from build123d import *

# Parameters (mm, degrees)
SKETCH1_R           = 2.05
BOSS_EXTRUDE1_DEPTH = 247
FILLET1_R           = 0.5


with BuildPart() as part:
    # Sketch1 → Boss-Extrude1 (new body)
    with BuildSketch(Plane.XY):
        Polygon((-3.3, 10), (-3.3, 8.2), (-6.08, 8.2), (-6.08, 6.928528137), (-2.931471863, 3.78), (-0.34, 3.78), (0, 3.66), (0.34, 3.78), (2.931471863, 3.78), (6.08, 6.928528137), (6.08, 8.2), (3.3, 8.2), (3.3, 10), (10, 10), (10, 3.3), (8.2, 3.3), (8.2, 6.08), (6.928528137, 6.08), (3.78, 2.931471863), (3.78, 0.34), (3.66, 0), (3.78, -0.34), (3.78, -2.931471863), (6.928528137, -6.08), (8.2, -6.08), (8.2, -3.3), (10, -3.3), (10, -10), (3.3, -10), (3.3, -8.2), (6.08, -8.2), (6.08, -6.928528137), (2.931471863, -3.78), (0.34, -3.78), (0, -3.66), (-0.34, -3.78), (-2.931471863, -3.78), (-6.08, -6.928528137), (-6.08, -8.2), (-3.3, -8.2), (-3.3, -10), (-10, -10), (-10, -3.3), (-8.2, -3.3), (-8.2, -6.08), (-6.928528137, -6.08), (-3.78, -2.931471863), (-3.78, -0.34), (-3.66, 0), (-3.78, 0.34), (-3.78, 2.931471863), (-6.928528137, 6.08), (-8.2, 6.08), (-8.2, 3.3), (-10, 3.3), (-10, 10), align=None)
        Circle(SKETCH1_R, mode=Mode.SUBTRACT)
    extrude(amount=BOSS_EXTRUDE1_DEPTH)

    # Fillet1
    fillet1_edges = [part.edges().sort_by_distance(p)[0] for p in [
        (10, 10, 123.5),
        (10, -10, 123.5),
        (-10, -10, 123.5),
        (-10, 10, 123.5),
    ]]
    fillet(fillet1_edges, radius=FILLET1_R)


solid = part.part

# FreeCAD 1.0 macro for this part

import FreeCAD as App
import Part
import Sketcher
Q = App.Units.Quantity


def edges_at(feature, points):
    """Names of the edges that pass closest to the given points."""
    edges = feature.Shape.Edges
    near = lambda p: min(range(len(edges)), key=lambda i: edges[i].distToShape(Part.Vertex(*p))[0])
    return sorted({f"Edge{near(p) + 1}" for p in points})

doc = App.newDocument("Part")
body = doc.addObject("PartDesign::Body", "Body")

# Sketch on XY plane
sketch1 = doc.addObject("Sketcher::SketchObject", "Sketch")
body.addObject(sketch1)
sketch1.AttachmentSupport = (doc.XY_Plane, [""])
sketch1.MapMode = "FlatFace"
sketch1.addGeometry([
    Part.LineSegment(App.Vector(-3.3, 8.2, 0), App.Vector(-3.3, 10, 0)),  # 0
    Part.LineSegment(App.Vector(-3.3, 10, 0), App.Vector(-10, 10, 0)),  # 1
    Part.LineSegment(App.Vector(-10, 10, 0), App.Vector(-10, 3.3, 0)),  # 2
    Part.LineSegment(App.Vector(-10, 3.3, 0), App.Vector(-8.2, 3.3, 0)),  # 3
    Part.LineSegment(App.Vector(-8.2, 3.3, 0), App.Vector(-8.2, 6.08, 0)),  # 4
    Part.LineSegment(App.Vector(-8.2, 6.08, 0), App.Vector(-6.928528, 6.08, 0)),  # 5
    Part.LineSegment(App.Vector(-6.928528, 6.08, 0), App.Vector(-3.78, 2.931472, 0)),  # 6
    Part.LineSegment(App.Vector(-3.78, 2.931472, 0), App.Vector(-3.78, 0.34, 0)),  # 7
    Part.LineSegment(App.Vector(-3.78, 0.34, 0), App.Vector(-3.66, 0, 0)),  # 8
    Part.LineSegment(App.Vector(-3.66, 0, 0), App.Vector(-3.78, -0.34, 0)),  # 9
    Part.LineSegment(App.Vector(-3.78, -0.34, 0), App.Vector(-3.78, -2.931472, 0)),  # 10
    Part.LineSegment(App.Vector(-3.78, -2.931472, 0), App.Vector(-6.928528, -6.08, 0)),  # 11
    Part.LineSegment(App.Vector(-6.928528, -6.08, 0), App.Vector(-8.2, -6.08, 0)),  # 12
    Part.LineSegment(App.Vector(-8.2, -6.08, 0), App.Vector(-8.2, -3.3, 0)),  # 13
    Part.LineSegment(App.Vector(-8.2, -3.3, 0), App.Vector(-10, -3.3, 0)),  # 14
    Part.LineSegment(App.Vector(-10, -3.3, 0), App.Vector(-10, -10, 0)),  # 15
    Part.LineSegment(App.Vector(-10, -10, 0), App.Vector(-3.3, -10, 0)),  # 16
    Part.LineSegment(App.Vector(-3.3, -10, 0), App.Vector(-3.3, -8.2, 0)),  # 17
    Part.LineSegment(App.Vector(-3.3, -8.2, 0), App.Vector(-6.08, -8.2, 0)),  # 18
    Part.LineSegment(App.Vector(-6.08, -8.2, 0), App.Vector(-6.08, -6.928528, 0)),  # 19
    Part.LineSegment(App.Vector(-6.08, -6.928528, 0), App.Vector(-2.931472, -3.78, 0)),  # 20
    Part.LineSegment(App.Vector(-2.931472, -3.78, 0), App.Vector(-0.34, -3.78, 0)),  # 21
    Part.LineSegment(App.Vector(-0.34, -3.78, 0), App.Vector(0, -3.66, 0)),  # 22
    Part.LineSegment(App.Vector(0, -3.66, 0), App.Vector(0.34, -3.78, 0)),  # 23
    Part.LineSegment(App.Vector(0.34, -3.78, 0), App.Vector(2.931472, -3.78, 0)),  # 24
    Part.LineSegment(App.Vector(2.931472, -3.78, 0), App.Vector(6.08, -6.928528, 0)),  # 25
    Part.LineSegment(App.Vector(6.08, -6.928528, 0), App.Vector(6.08, -8.2, 0)),  # 26
    Part.LineSegment(App.Vector(6.08, -8.2, 0), App.Vector(3.3, -8.2, 0)),  # 27
    Part.LineSegment(App.Vector(3.3, -8.2, 0), App.Vector(3.3, -10, 0)),  # 28
    Part.LineSegment(App.Vector(3.3, -10, 0), App.Vector(10, -10, 0)),  # 29
    Part.LineSegment(App.Vector(10, -10, 0), App.Vector(10, -3.3, 0)),  # 30
    Part.LineSegment(App.Vector(10, -3.3, 0), App.Vector(8.2, -3.3, 0)),  # 31
    Part.LineSegment(App.Vector(8.2, -3.3, 0), App.Vector(8.2, -6.08, 0)),  # 32
    Part.LineSegment(App.Vector(8.2, -6.08, 0), App.Vector(6.928528, -6.08, 0)),  # 33
    Part.LineSegment(App.Vector(6.928528, -6.08, 0), App.Vector(3.78, -2.931472, 0)),  # 34
    Part.LineSegment(App.Vector(3.78, -2.931472, 0), App.Vector(3.78, -0.34, 0)),  # 35
    Part.LineSegment(App.Vector(3.78, -0.34, 0), App.Vector(3.66, 0, 0)),  # 36
    Part.LineSegment(App.Vector(3.66, 0, 0), App.Vector(3.78, 0.34, 0)),  # 37
    Part.LineSegment(App.Vector(3.78, 0.34, 0), App.Vector(3.78, 2.931472, 0)),  # 38
    Part.LineSegment(App.Vector(3.78, 2.931472, 0), App.Vector(6.928528, 6.08, 0)),  # 39
    Part.LineSegment(App.Vector(6.928528, 6.08, 0), App.Vector(8.2, 6.08, 0)),  # 40
    Part.LineSegment(App.Vector(8.2, 6.08, 0), App.Vector(8.2, 3.3, 0)),  # 41
    Part.LineSegment(App.Vector(8.2, 3.3, 0), App.Vector(10, 3.3, 0)),  # 42
    Part.LineSegment(App.Vector(10, 3.3, 0), App.Vector(10, 10, 0)),  # 43
    Part.LineSegment(App.Vector(10, 10, 0), App.Vector(3.3, 10, 0)),  # 44
    Part.LineSegment(App.Vector(3.3, 10, 0), App.Vector(3.3, 8.2, 0)),  # 45
    Part.LineSegment(App.Vector(3.3, 8.2, 0), App.Vector(6.08, 8.2, 0)),  # 46
    Part.LineSegment(App.Vector(6.08, 8.2, 0), App.Vector(6.08, 6.928528, 0)),  # 47
    Part.LineSegment(App.Vector(6.08, 6.928528, 0), App.Vector(2.931472, 3.78, 0)),  # 48
    Part.LineSegment(App.Vector(2.931472, 3.78, 0), App.Vector(0.34, 3.78, 0)),  # 49
    Part.LineSegment(App.Vector(0.34, 3.78, 0), App.Vector(0, 3.66, 0)),  # 50
    Part.LineSegment(App.Vector(0, 3.66, 0), App.Vector(-0.34, 3.78, 0)),  # 51
    Part.LineSegment(App.Vector(-0.34, 3.78, 0), App.Vector(-2.931472, 3.78, 0)),  # 52
    Part.LineSegment(App.Vector(-2.931472, 3.78, 0), App.Vector(-6.08, 6.928528, 0)),  # 53
    Part.LineSegment(App.Vector(-6.08, 6.928528, 0), App.Vector(-6.08, 8.2, 0)),  # 54
    Part.LineSegment(App.Vector(-6.08, 8.2, 0), App.Vector(-3.3, 8.2, 0)),  # 55
    Part.Circle(App.Vector(0, 0, 0), App.Vector(0, 0, 1), 2.05),  # 56
], False)
sketch1.addConstraint([
    Sketcher.Constraint("Coincident", 0, 2, 1, 1),
    Sketcher.Constraint("Coincident", 1, 2, 2, 1),
    Sketcher.Constraint("Coincident", 2, 2, 3, 1),
    Sketcher.Constraint("Coincident", 3, 2, 4, 1),
    Sketcher.Constraint("Coincident", 4, 2, 5, 1),
    Sketcher.Constraint("Coincident", 5, 2, 6, 1),
    Sketcher.Constraint("Coincident", 6, 2, 7, 1),
    Sketcher.Constraint("Coincident", 7, 2, 8, 1),
    Sketcher.Constraint("Coincident", 8, 2, 9, 1),
    Sketcher.Constraint("Coincident", 9, 2, 10, 1),
    Sketcher.Constraint("Coincident", 10, 2, 11, 1),
    Sketcher.Constraint("Coincident", 11, 2, 12, 1),
    Sketcher.Constraint("Coincident", 12, 2, 13, 1),
    Sketcher.Constraint("Coincident", 13, 2, 14, 1),
    Sketcher.Constraint("Coincident", 14, 2, 15, 1),
    Sketcher.Constraint("Coincident", 15, 2, 16, 1),
    Sketcher.Constraint("Coincident", 16, 2, 17, 1),
    Sketcher.Constraint("Coincident", 17, 2, 18, 1),
    Sketcher.Constraint("Coincident", 18, 2, 19, 1),
    Sketcher.Constraint("Coincident", 19, 2, 20, 1),
    Sketcher.Constraint("Coincident", 20, 2, 21, 1),
    Sketcher.Constraint("Coincident", 21, 2, 22, 1),
    Sketcher.Constraint("Coincident", 22, 2, 23, 1),
    Sketcher.Constraint("Coincident", 23, 2, 24, 1),
    Sketcher.Constraint("Coincident", 24, 2, 25, 1),
    Sketcher.Constraint("Coincident", 25, 2, 26, 1),
    Sketcher.Constraint("Coincident", 26, 2, 27, 1),
    Sketcher.Constraint("Coincident", 27, 2, 28, 1),
    Sketcher.Constraint("Coincident", 28, 2, 29, 1),
    Sketcher.Constraint("Coincident", 29, 2, 30, 1),
    Sketcher.Constraint("Coincident", 30, 2, 31, 1),
    Sketcher.Constraint("Coincident", 31, 2, 32, 1),
    Sketcher.Constraint("Coincident", 32, 2, 33, 1),
    Sketcher.Constraint("Coincident", 33, 2, 34, 1),
    Sketcher.Constraint("Coincident", 34, 2, 35, 1),
    Sketcher.Constraint("Coincident", 35, 2, 36, 1),
    Sketcher.Constraint("Coincident", 36, 2, 37, 1),
    Sketcher.Constraint("Coincident", 37, 2, 38, 1),
    Sketcher.Constraint("Coincident", 38, 2, 39, 1),
    Sketcher.Constraint("Coincident", 39, 2, 40, 1),
    Sketcher.Constraint("Coincident", 40, 2, 41, 1),
    Sketcher.Constraint("Coincident", 41, 2, 42, 1),
    Sketcher.Constraint("Coincident", 42, 2, 43, 1),
    Sketcher.Constraint("Coincident", 43, 2, 44, 1),
    Sketcher.Constraint("Coincident", 44, 2, 45, 1),
    Sketcher.Constraint("Coincident", 45, 2, 46, 1),
    Sketcher.Constraint("Coincident", 46, 2, 47, 1),
    Sketcher.Constraint("Coincident", 47, 2, 48, 1),
    Sketcher.Constraint("Coincident", 48, 2, 49, 1),
    Sketcher.Constraint("Coincident", 49, 2, 50, 1),
    Sketcher.Constraint("Coincident", 50, 2, 51, 1),
    Sketcher.Constraint("Coincident", 51, 2, 52, 1),
    Sketcher.Constraint("Coincident", 52, 2, 53, 1),
    Sketcher.Constraint("Coincident", 53, 2, 54, 1),
    Sketcher.Constraint("Coincident", 54, 2, 55, 1),
    Sketcher.Constraint("Coincident", 55, 2, 0, 1),
    Sketcher.Constraint("Vertical", 0),
    Sketcher.Constraint("Horizontal", 1),
    Sketcher.Constraint("Vertical", 2),
    Sketcher.Constraint("Horizontal", 3),
    Sketcher.Constraint("Vertical", 4),
    Sketcher.Constraint("Horizontal", 5),
    Sketcher.Constraint("Vertical", 7),
    Sketcher.Constraint("Vertical", 10),
    Sketcher.Constraint("Horizontal", 12),
    Sketcher.Constraint("Vertical", 13),
    Sketcher.Constraint("Horizontal", 14),
    Sketcher.Constraint("Vertical", 15),
    Sketcher.Constraint("Horizontal", 16),
    Sketcher.Constraint("Vertical", 17),
    Sketcher.Constraint("Horizontal", 18),
    Sketcher.Constraint("Vertical", 19),
    Sketcher.Constraint("Horizontal", 21),
    Sketcher.Constraint("Horizontal", 24),
    Sketcher.Constraint("Vertical", 26),
    Sketcher.Constraint("Horizontal", 27),
    Sketcher.Constraint("Vertical", 28),
    Sketcher.Constraint("Horizontal", 29),
    Sketcher.Constraint("Vertical", 30),
    Sketcher.Constraint("Horizontal", 31),
    Sketcher.Constraint("Vertical", 32),
    Sketcher.Constraint("Horizontal", 33),
    Sketcher.Constraint("Vertical", 35),
    Sketcher.Constraint("Vertical", 38),
    Sketcher.Constraint("Horizontal", 40),
    Sketcher.Constraint("Vertical", 41),
    Sketcher.Constraint("Horizontal", 42),
    Sketcher.Constraint("Vertical", 43),
    Sketcher.Constraint("Horizontal", 44),
    Sketcher.Constraint("Vertical", 45),
    Sketcher.Constraint("Horizontal", 46),
    Sketcher.Constraint("Vertical", 47),
    Sketcher.Constraint("Horizontal", 49),
    Sketcher.Constraint("Horizontal", 52),
    Sketcher.Constraint("Vertical", 54),
    Sketcher.Constraint("Horizontal", 55),
    Sketcher.Constraint("Coincident", 56, 3, -1, 1),
    Sketcher.Constraint("Symmetric", 0, 2, 28, 2, -1, 1),
    Sketcher.Constraint("Symmetric", 2, 2, 30, 2, -1, 1),
    Sketcher.Constraint("Symmetric", 4, 2, 32, 2, -1, 1),
    Sketcher.Constraint("Symmetric", 6, 2, 34, 2, -1, 1),
    Sketcher.Constraint("Symmetric", 8, 2, 36, 2, -1, 1),
    Sketcher.Constraint("Symmetric", 9, 2, 37, 2, -1, 1),
    Sketcher.Constraint("Symmetric", 11, 2, 39, 2, -1, 1),
    Sketcher.Constraint("Symmetric", 13, 2, 41, 2, -1, 1),
    Sketcher.Constraint("Symmetric", 15, 2, 43, 2, -1, 1),
    Sketcher.Constraint("Symmetric", 17, 2, 45, 2, -1, 1),
    Sketcher.Constraint("Symmetric", 19, 2, 47, 2, -1, 1),
    Sketcher.Constraint("Symmetric", 20, 2, 48, 2, -1, 1),
    Sketcher.Constraint("Symmetric", 22, 2, 50, 2, -1, 1),
    Sketcher.Constraint("Symmetric", 23, 2, 51, 2, -1, 1),
    Sketcher.Constraint("Symmetric", 25, 2, 53, 2, -1, 1),
    Sketcher.Constraint("Symmetric", 21, 2, 23, 2, -2),
    Sketcher.Constraint("Symmetric", 19, 2, 25, 2, -2),
    Sketcher.Constraint("Symmetric", 17, 2, 27, 2, -2),
    Sketcher.Constraint("Symmetric", 15, 2, 29, 2, -2),
    Sketcher.Constraint("Symmetric", 13, 2, 31, 2, -2),
    Sketcher.Constraint("Symmetric", 11, 2, 33, 2, -2),
    Sketcher.Constraint("Symmetric", 10, 2, 34, 2, -2),
    Sketcher.Constraint("PointOnObject", 8, 2, -1),
    Sketcher.Constraint("PointOnObject", 22, 2, -2),
    Sketcher.Constraint("Perpendicular", 6, 11),
    Sketcher.Constraint("Parallel", 11, 20),
    Sketcher.Constraint("Perpendicular", 8, 22),
    Sketcher.Constraint("Perpendicular", 9, 23),
    Sketcher.Constraint("Perpendicular", 20, 25),
    Sketcher.Constraint("Parallel", 25, 34),
    Sketcher.Constraint("Perpendicular", 22, 36),
    Sketcher.Constraint("Perpendicular", 34, 39),
    Sketcher.Constraint("Perpendicular", 36, 50),
    Sketcher.Constraint("Perpendicular", 48, 53),
    Sketcher.Constraint("Horizontal", 46, 2, 54, 2),
    Sketcher.Constraint("Equal", 42, 0),
    Sketcher.Constraint("Equal", 44, 2),
    Sketcher.Constraint("Equal", 55, 4),
    Sketcher.Constraint("Equal", 52, 7),
    Sketcher.Constraint("Equal", 40, 19),
    Sketcher.Constraint("Equal", 11, 20),
    Sketcher.Constraint("Equal", 9, 22),
    Sketcher.Constraint("Diameter", 56, Q("4.1 mm")),
    Sketcher.Constraint("DistanceX", 1, 2, 1, 1, Q("6.7 mm")),
    Sketcher.Constraint("DistanceX", 3, 1, 3, 2, Q("1.8 mm")),
    Sketcher.Constraint("DistanceY", -1, 1, 0, 2, Q("10 mm")),
    Sketcher.Constraint("DistanceX", 18, 2, 18, 1, Q("2.78 mm")),
    Sketcher.Constraint("DistanceX", 6, 2, -1, 1, Q("3.78 mm")),
    Sketcher.Constraint("DistanceY", -1, 1, 7, 2, Q("0.34 mm")),
    Sketcher.Constraint("DistanceX", 8, 2, -1, 1, Q("3.66 mm")),
    Sketcher.Constraint("DistanceX", 5, 1, 5, 2, Q("1.271472 mm")),
])
pad1 = doc.addObject("PartDesign::Pad", "Pad")
body.addObject(pad1)
pad1.Profile = sketch1
pad1.Length = 247
doc.recompute()

fillet = doc.addObject("PartDesign::Fillet", "Fillet")
body.addObject(fillet)
fillet.Base = (pad1, edges_at(pad1, [
    (10, 10, 123.5),
    (10, -10, 123.5),
    (-10, -10, 123.5),
    (-10, 10, 123.5),
]))
fillet.Radius = 0.5

doc.recompute()
